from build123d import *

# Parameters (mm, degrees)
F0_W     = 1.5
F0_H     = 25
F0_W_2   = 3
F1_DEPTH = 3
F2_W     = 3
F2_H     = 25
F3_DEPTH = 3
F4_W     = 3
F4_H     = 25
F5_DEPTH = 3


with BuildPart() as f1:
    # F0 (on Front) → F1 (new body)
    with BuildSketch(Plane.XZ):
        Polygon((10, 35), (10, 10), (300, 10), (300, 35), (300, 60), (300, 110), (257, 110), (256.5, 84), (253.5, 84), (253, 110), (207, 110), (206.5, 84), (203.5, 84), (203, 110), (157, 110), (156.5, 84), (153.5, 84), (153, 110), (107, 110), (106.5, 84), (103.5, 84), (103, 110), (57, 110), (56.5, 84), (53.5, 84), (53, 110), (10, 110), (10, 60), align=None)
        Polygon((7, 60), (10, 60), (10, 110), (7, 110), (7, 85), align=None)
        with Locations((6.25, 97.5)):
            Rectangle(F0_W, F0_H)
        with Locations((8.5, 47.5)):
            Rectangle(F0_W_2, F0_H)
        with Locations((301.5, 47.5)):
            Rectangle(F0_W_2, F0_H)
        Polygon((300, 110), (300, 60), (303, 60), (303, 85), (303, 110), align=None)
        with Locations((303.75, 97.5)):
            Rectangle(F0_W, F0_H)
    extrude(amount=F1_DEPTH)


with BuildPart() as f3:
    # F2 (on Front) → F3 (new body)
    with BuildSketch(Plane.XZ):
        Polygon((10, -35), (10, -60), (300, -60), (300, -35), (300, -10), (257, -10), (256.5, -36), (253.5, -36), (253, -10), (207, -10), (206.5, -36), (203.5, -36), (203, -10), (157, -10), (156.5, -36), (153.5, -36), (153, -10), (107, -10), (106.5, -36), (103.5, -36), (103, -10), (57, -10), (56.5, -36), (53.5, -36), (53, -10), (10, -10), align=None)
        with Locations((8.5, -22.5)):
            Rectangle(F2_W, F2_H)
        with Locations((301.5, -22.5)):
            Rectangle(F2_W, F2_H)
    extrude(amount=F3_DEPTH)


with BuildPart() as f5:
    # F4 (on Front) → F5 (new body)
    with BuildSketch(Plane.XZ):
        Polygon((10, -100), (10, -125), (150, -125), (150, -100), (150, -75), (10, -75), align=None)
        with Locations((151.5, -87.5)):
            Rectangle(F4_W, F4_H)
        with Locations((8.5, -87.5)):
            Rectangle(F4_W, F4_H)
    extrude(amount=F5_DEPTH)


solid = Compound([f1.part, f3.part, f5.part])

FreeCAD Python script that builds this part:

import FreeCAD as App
import Part
import Sketcher

V = App.Vector
Q = App.Units.Quantity

doc = App.newDocument("Part")
body = doc.addObject("PartDesign::Body", "Body")

# Sketch on XZ plane
sketch1 = body.newObject("Sketcher::SketchObject", "Sketch")
sketch1.AttachmentSupport = (doc.getObject("XZ_Plane"), [""])
sketch1.MapMode = "FlatFace"
sketch1.addGeometry(Part.LineSegment(V(10, 10, 0), V(300, 10, 0)), False)
sketch1.addGeometry(Part.LineSegment(V(300, 10, 0), V(300, 35, 0)), False)
sketch1.addGeometry(Part.LineSegment(V(300, 35, 0), V(303, 35, 0)), False)
sketch1.addGeometry(Part.LineSegment(V(303, 35, 0), V(303, 85, 0)), False)
sketch1.addGeometry(Part.LineSegment(V(303, 85, 0), V(304.5, 85, 0)), False)
sketch1.addGeometry(Part.LineSegment(V(304.5, 85, 0), V(304.5, 110, 0)), False)
sketch1.addGeometry(Part.LineSegment(V(304.5, 110, 0), V(257, 110, 0)), False)
sketch1.addGeometry(Part.LineSegment(V(257, 110, 0), V(256.5, 84, 0)), False)
sketch1.addGeometry(Part.LineSegment(V(256.5, 84, 0), V(253.5, 84, 0)), False)
sketch1.addGeometry(Part.LineSegment(V(253.5, 84, 0), V(253, 110, 0)), False)
sketch1.addGeometry(Part.LineSegment(V(253, 110, 0), V(207, 110, 0)), False)
sketch1.addGeometry(Part.LineSegment(V(207, 110, 0), V(206.5, 84, 0)), False)
sketch1.addGeometry(Part.LineSegment(V(206.5, 84, 0), V(203.5, 84, 0)), False)
sketch1.addGeometry(Part.LineSegment(V(203.5, 84, 0), V(203, 110, 0)), False)
sketch1.addGeometry(Part.LineSegment(V(203, 110, 0), V(157, 110, 0)), False)
sketch1.addGeometry(Part.LineSegment(V(157, 110, 0), V(156.5, 84, 0)), False)
sketch1.addGeometry(Part.LineSegment(V(156.5, 84, 0), V(153.5, 84, 0)), False)
sketch1.addGeometry(Part.LineSegment(V(153.5, 84, 0), V(153, 110, 0)), False)
sketch1.addGeometry(Part.LineSegment(V(153, 110, 0), V(107, 110, 0)), False)
sketch1.addGeometry(Part.LineSegment(V(107, 110, 0), V(106.5, 84, 0)), False)
sketch1.addGeometry(Part.LineSegment(V(106.5, 84, 0), V(103.5, 84, 0)), False)
sketch1.addGeometry(Part.LineSegment(V(103.5, 84, 0), V(103, 110, 0)), False)
sketch1.addGeometry(Part.LineSegment(V(103, 110, 0), V(57, 110, 0)), False)
sketch1.addGeometry(Part.LineSegment(V(57, 110, 0), V(56.5, 84, 0)), False)
sketch1.addGeometry(Part.LineSegment(V(56.5, 84, 0), V(53.5, 84, 0)), False)
sketch1.addGeometry(Part.LineSegment(V(53.5, 84, 0), V(53, 110, 0)), False)
sketch1.addGeometry(Part.LineSegment(V(53, 110, 0), V(5.5, 110, 0)), False)
sketch1.addGeometry(Part.LineSegment(V(5.5, 110, 0), V(5.5, 85, 0)), False)
sketch1.addGeometry(Part.LineSegment(V(5.5, 85, 0), V(7, 85, 0)), False)
sketch1.addGeometry(Part.LineSegment(V(7, 85, 0), V(7, 35, 0)), False)
sketch1.addGeometry(Part.LineSegment(V(7, 35, 0), V(10, 35, 0)), False)
sketch1.addGeometry(Part.LineSegment(V(10, 35, 0), V(10, 10, 0)), False)
sketch1.addConstraint(Sketcher.Constraint("Coincident", 0, 2, 1, 1))
sketch1.addConstraint(Sketcher.Constraint("Coincident", 1, 2, 2, 1))
sketch1.addConstraint(Sketcher.Constraint("Coincident", 2, 2, 3, 1))
sketch1.addConstraint(Sketcher.Constraint("Coincident", 3, 2, 4, 1))
sketch1.addConstraint(Sketcher.Constraint("Coincident", 4, 2, 5, 1))
sketch1.addConstraint(Sketcher.Constraint("Coincident", 5, 2, 6, 1))
sketch1.addConstraint(Sketcher.Constraint("Coincident", 6, 2, 7, 1))
sketch1.addConstraint(Sketcher.Constraint("Coincident", 7, 2, 8, 1))
sketch1.addConstraint(Sketcher.Constraint("Coincident", 8, 2, 9, 1))
sketch1.addConstraint(Sketcher.Constraint("Coincident", 9, 2, 10, 1))
sketch1.addConstraint(Sketcher.Constraint("Coincident", 10, 2, 11, 1))
sketch1.addConstraint(Sketcher.Constraint("Coincident", 11, 2, 12, 1))
sketch1.addConstraint(Sketcher.Constraint("Coincident", 12, 2, 13, 1))
sketch1.addConstraint(Sketcher.Constraint("Coincident", 13, 2, 14, 1))
sketch1.addConstraint(Sketcher.Constraint("Coincident", 14, 2, 15, 1))
sketch1.addConstraint(Sketcher.Constraint("Coincident", 15, 2, 16, 1))
sketch1.addConstraint(Sketcher.Constraint("Coincident", 16, 2, 17, 1))
sketch1.addConstraint(Sketcher.Constraint("Coincident", 17, 2, 18, 1))
sketch1.addConstraint(Sketcher.Constraint("Coincident", 18, 2, 19, 1))
sketch1.addConstraint(Sketcher.Constraint("Coincident", 19, 2, 20, 1))
sketch1.addConstraint(Sketcher.Constraint("Coincident", 20, 2, 21, 1))
sketch1.addConstraint(Sketcher.Constraint("Coincident", 21, 2, 22, 1))
sketch1.addConstraint(Sketcher.Constraint("Coincident", 22, 2, 23, 1))
sketch1.addConstraint(Sketcher.Constraint("Coincident", 23, 2, 24, 1))
sketch1.addConstraint(Sketcher.Constraint("Coincident", 24, 2, 25, 1))
sketch1.addConstraint(Sketcher.Constraint("Coincident", 25, 2, 26, 1))
sketch1.addConstraint(Sketcher.Constraint("Coincident", 26, 2, 27, 1))
sketch1.addConstraint(Sketcher.Constraint("Coincident", 27, 2, 28, 1))
sketch1.addConstraint(Sketcher.Constraint("Coincident", 28, 2, 29, 1))
sketch1.addConstraint(Sketcher.Constraint("Coincident", 29, 2, 30, 1))
sketch1.addConstraint(Sketcher.Constraint("Coincident", 30, 2, 31, 1))
sketch1.addConstraint(Sketcher.Constraint("Coincident", 31, 2, 0, 1))
sketch1.addConstraint(Sketcher.Constraint("Horizontal", 0))
sketch1.addConstraint(Sketcher.Constraint("Vertical", 1))
sketch1.addConstraint(Sketcher.Constraint("Horizontal", 2))
sketch1.addConstraint(Sketcher.Constraint("Vertical", 3))
sketch1.addConstraint(Sketcher.Constraint("Horizontal", 4))
sketch1.addConstraint(Sketcher.Constraint("Vertical", 5))
sketch1.addConstraint(Sketcher.Constraint("Horizontal", 6))
sketch1.addConstraint(Sketcher.Constraint("Horizontal", 8))
sketch1.addConstraint(Sketcher.Constraint("Horizontal", 10))
sketch1.addConstraint(Sketcher.Constraint("Horizontal", 12))
sketch1.addConstraint(Sketcher.Constraint("Horizontal", 14))
sketch1.addConstraint(Sketcher.Constraint("Horizontal", 16))
sketch1.addConstraint(Sketcher.Constraint("Horizontal", 18))
sketch1.addConstraint(Sketcher.Constraint("Horizontal", 20))
sketch1.addConstraint(Sketcher.Constraint("Horizontal", 22))
sketch1.addConstraint(Sketcher.Constraint("Horizontal", 24))
sketch1.addConstraint(Sketcher.Constraint("Horizontal", 26))
sketch1.addConstraint(Sketcher.Constraint("Vertical", 27))
sketch1.addConstraint(Sketcher.Constraint("Horizontal", 28))
sketch1.addConstraint(Sketcher.Constraint("Vertical", 29))
sketch1.addConstraint(Sketcher.Constraint("Horizontal", 30))
sketch1.addConstraint(Sketcher.Constraint("Vertical", 31))
sketch1.addConstraint(Sketcher.Constraint("Parallel", 7, 11))
sketch1.addConstraint(Sketcher.Constraint("Parallel", 9, 13))
sketch1.addConstraint(Sketcher.Constraint("Parallel", 11, 15))
sketch1.addConstraint(Sketcher.Constraint("Parallel", 13, 17))
sketch1.addConstraint(Sketcher.Constraint("Parallel", 15, 19))
sketch1.addConstraint(Sketcher.Constraint("Parallel", 17, 21))
sketch1.addConstraint(Sketcher.Constraint("Parallel", 19, 23))
sketch1.addConstraint(Sketcher.Constraint("Parallel", 21, 25))
sketch1.addConstraint(Sketcher.Constraint("Horizontal", 6, 2, 9, 2))
sketch1.addConstraint(Sketcher.Constraint("Horizontal", 8, 2, 11, 2))
sketch1.addConstraint(Sketcher.Constraint("Horizontal", 10, 2, 13, 2))
sketch1.addConstraint(Sketcher.Constraint("Horizontal", 12, 2, 15, 2))
sketch1.addConstraint(Sketcher.Constraint("Horizontal", 14, 2, 17, 2))
sketch1.addConstraint(Sketcher.Constraint("Horizontal", 16, 2, 19, 2))
sketch1.addConstraint(Sketcher.Constraint("Horizontal", 18, 2, 21, 2))
sketch1.addConstraint(Sketcher.Constraint("Horizontal", 20, 2, 23, 2))
sketch1.addConstraint(Sketcher.Constraint("Horizontal", 22, 2, 25, 2))
sketch1.addConstraint(Sketcher.Constraint("Horizontal", 4, 2, 27, 2))
sketch1.addConstraint(Sketcher.Constraint("Horizontal", 2, 2, 29, 2))
sketch1.addConstraint(Sketcher.Constraint("Equal", 2, 8))
sketch1.addConstraint(Sketcher.Constraint("Equal", 8, 12))
sketch1.addConstraint(Sketcher.Constraint("Equal", 10, 14))
sketch1.addConstraint(Sketcher.Constraint("Equal", 12, 16))
sketch1.addConstraint(Sketcher.Constraint("Equal", 14, 18))
sketch1.addConstraint(Sketcher.Constraint("Equal", 16, 20))
sketch1.addConstraint(Sketcher.Constraint("Equal", 18, 22))
sketch1.addConstraint(Sketcher.Constraint("Equal", 20, 24))
sketch1.addConstraint(Sketcher.Constraint("Equal", 6, 26))
sketch1.addConstraint(Sketcher.Constraint("Equal", 4, 28))
sketch1.addConstraint(Sketcher.Constraint("Equal", 24, 30))
sketch1.addConstraint(Sketcher.Constraint("Equal", 1, 5))
sketch1.addConstraint(Sketcher.Constraint("Equal", 7, 9))
sketch1.addConstraint(Sketcher.Constraint("DistanceX", 0, 1, 0, 2, Q("290 mm")))
sketch1.addConstraint(Sketcher.Constraint("DistanceX", 2, 1, 2, 2, Q("3 mm")))
sketch1.addConstraint(Sketcher.Constraint("DistanceX", 10, 2, 10, 1, Q("46 mm")))
sketch1.addConstraint(Sketcher.Constraint("DistanceY", 1, 1, 1, 2, Q("25 mm")))
sketch1.addConstraint(Sketcher.Constraint("DistanceY", 3, 1, 3, 2, Q("50 mm")))
sketch1.addConstraint(Sketcher.Constraint("DistanceX", 4, 1, 4, 2, Q("1.5 mm")))
sketch1.addConstraint(Sketcher.Constraint("DistanceX", 6, 2, 6, 1, Q("47.5 mm")))
sketch1.addConstraint(Sketcher.Constraint("DistanceX", -1, 1, 0, 2, Q("300 mm")))
sketch1.addConstraint(Sketcher.Constraint("DistanceY", -1, 1, 0, 2, Q("10 mm")))
sketch1.addConstraint(Sketcher.Constraint("DistanceY", -1, 1, 7, 2, Q("84 mm")))
pad1 = body.newObject("PartDesign::Pad", "Pad")
pad1.Profile = sketch1
pad1.Length = 3
body2 = doc.addObject("PartDesign::Body", "Body001")

# Sketch on XZ plane
sketch2 = body2.newObject("Sketcher::SketchObject", "Sketch001")
sketch2.AttachmentSupport = (doc.getObject("XZ_Plane001"), [""])
sketch2.MapMode = "FlatFace"
sketch2.addGeometry(Part.LineSegment(V(10, -60, 0), V(300, -60, 0)), False)
sketch2.addGeometry(Part.LineSegment(V(300, -60, 0), V(300, -35, 0)), False)
sketch2.addGeometry(Part.LineSegment(V(300, -35, 0), V(303, -35, 0)), False)
sketch2.addGeometry(Part.LineSegment(V(303, -35, 0), V(303, -10, 0)), False)
sketch2.addGeometry(Part.LineSegment(V(303, -10, 0), V(257, -10, 0)), False)
sketch2.addGeometry(Part.LineSegment(V(257, -10, 0), V(256.5, -36, 0)), False)
sketch2.addGeometry(Part.LineSegment(V(256.5, -36, 0), V(253.5, -36, 0)), False)
sketch2.addGeometry(Part.LineSegment(V(253.5, -36, 0), V(253, -10, 0)), False)
sketch2.addGeometry(Part.LineSegment(V(253, -10, 0), V(207, -10, 0)), False)
sketch2.addGeometry(Part.LineSegment(V(207, -10, 0), V(206.5, -36, 0)), False)
sketch2.addGeometry(Part.LineSegment(V(206.5, -36, 0), V(203.5, -36, 0)), False)
sketch2.addGeometry(Part.LineSegment(V(203.5, -36, 0), V(203, -10, 0)), False)
sketch2.addGeometry(Part.LineSegment(V(203, -10, 0), V(157, -10, 0)), False)
sketch2.addGeometry(Part.LineSegment(V(157, -10, 0), V(156.5, -36, 0)), False)
sketch2.addGeometry(Part.LineSegment(V(156.5, -36, 0), V(153.5, -36, 0)), False)
sketch2.addGeometry(Part.LineSegment(V(153.5, -36, 0), V(153, -10, 0)), False)
sketch2.addGeometry(Part.LineSegment(V(153, -10, 0), V(107, -10, 0)), False)
sketch2.addGeometry(Part.LineSegment(V(107, -10, 0), V(106.5, -36, 0)), False)
sketch2.addGeometry(Part.LineSegment(V(106.5, -36, 0), V(103.5, -36, 0)), False)
sketch2.addGeometry(Part.LineSegment(V(103.5, -36, 0), V(103, -10, 0)), False)
sketch2.addGeometry(Part.LineSegment(V(103, -10, 0), V(57, -10, 0)), False)
sketch2.addGeometry(Part.LineSegment(V(57, -10, 0), V(56.5, -36, 0)), False)
sketch2.addGeometry(Part.LineSegment(V(56.5, -36, 0), V(53.5, -36, 0)), False)
sketch2.addGeometry(Part.LineSegment(V(53.5, -36, 0), V(53, -10, 0)), False)
sketch2.addGeometry(Part.LineSegment(V(53, -10, 0), V(7, -10, 0)), False)
sketch2.addGeometry(Part.LineSegment(V(7, -10, 0), V(7, -35, 0)), False)
sketch2.addGeometry(Part.LineSegment(V(7, -35, 0), V(10, -35, 0)), False)
sketch2.addGeometry(Part.LineSegment(V(10, -35, 0), V(10, -60, 0)), False)
sketch2.addConstraint(Sketcher.Constraint("Coincident", 0, 2, 1, 1))
sketch2.addConstraint(Sketcher.Constraint("Coincident", 1, 2, 2, 1))
sketch2.addConstraint(Sketcher.Constraint("Coincident", 2, 2, 3, 1))
sketch2.addConstraint(Sketcher.Constraint("Coincident", 3, 2, 4, 1))
sketch2.addConstraint(Sketcher.Constraint("Coincident", 4, 2, 5, 1))
sketch2.addConstraint(Sketcher.Constraint("Coincident", 5, 2, 6, 1))
sketch2.addConstraint(Sketcher.Constraint("Coincident", 6, 2, 7, 1))
sketch2.addConstraint(Sketcher.Constraint("Coincident", 7, 2, 8, 1))
sketch2.addConstraint(Sketcher.Constraint("Coincident", 8, 2, 9, 1))
sketch2.addConstraint(Sketcher.Constraint("Coincident", 9, 2, 10, 1))
sketch2.addConstraint(Sketcher.Constraint("Coincident", 10, 2, 11, 1))
sketch2.addConstraint(Sketcher.Constraint("Coincident", 11, 2, 12, 1))
sketch2.addConstraint(Sketcher.Constraint("Coincident", 12, 2, 13, 1))
sketch2.addConstraint(Sketcher.Constraint("Coincident", 13, 2, 14, 1))
sketch2.addConstraint(Sketcher.Constraint("Coincident", 14, 2, 15, 1))
sketch2.addConstraint(Sketcher.Constraint("Coincident", 15, 2, 16, 1))
sketch2.addConstraint(Sketcher.Constraint("Coincident", 16, 2, 17, 1))
sketch2.addConstraint(Sketcher.Constraint("Coincident", 17, 2, 18, 1))
sketch2.addConstraint(Sketcher.Constraint("Coincident", 18, 2, 19, 1))
sketch2.addConstraint(Sketcher.Constraint("Coincident", 19, 2, 20, 1))
sketch2.addConstraint(Sketcher.Constraint("Coincident", 20, 2, 21, 1))
sketch2.addConstraint(Sketcher.Constraint("Coincident", 21, 2, 22, 1))
sketch2.addConstraint(Sketcher.Constraint("Coincident", 22, 2, 23, 1))
sketch2.addConstraint(Sketcher.Constraint("Coincident", 23, 2, 24, 1))
sketch2.addConstraint(Sketcher.Constraint("Coincident", 24, 2, 25, 1))
sketch2.addConstraint(Sketcher.Constraint("Coincident", 25, 2, 26, 1))
sketch2.addConstraint(Sketcher.Constraint("Coincident", 26, 2, 27, 1))
sketch2.addConstraint(Sketcher.Constraint("Coincident", 27, 2, 0, 1))
sketch2.addConstraint(Sketcher.Constraint("Horizontal", 0))
sketch2.addConstraint(Sketcher.Constraint("Vertical", 1))
sketch2.addConstraint(Sketcher.Constraint("Horizontal", 2))
sketch2.addConstraint(Sketcher.Constraint("Vertical", 3))
sketch2.addConstraint(Sketcher.Constraint("Horizontal", 4))
sketch2.addConstraint(Sketcher.Constraint("Horizontal", 6))
sketch2.addConstraint(Sketcher.Constraint("Horizontal", 8))
sketch2.addConstraint(Sketcher.Constraint("Horizontal", 10))
sketch2.addConstraint(Sketcher.Constraint("Horizontal", 12))
sketch2.addConstraint(Sketcher.Constraint("Horizontal", 14))
sketch2.addConstraint(Sketcher.Constraint("Horizontal", 16))
sketch2.addConstraint(Sketcher.Constraint("Horizontal", 18))
sketch2.addConstraint(Sketcher.Constraint("Horizontal", 20))
sketch2.addConstraint(Sketcher.Constraint("Horizontal", 22))
sketch2.addConstraint(Sketcher.Constraint("Horizontal", 24))
sketch2.addConstraint(Sketcher.Constraint("Vertical", 25))
sketch2.addConstraint(Sketcher.Constraint("Horizontal", 26))
sketch2.addConstraint(Sketcher.Constraint("Vertical", 27))
sketch2.addConstraint(Sketcher.Constraint("Parallel", 5, 9))
sketch2.addConstraint(Sketcher.Constraint("Parallel", 7, 11))
sketch2.addConstraint(Sketcher.Constraint("Parallel", 9, 13))
sketch2.addConstraint(Sketcher.Constraint("Parallel", 11, 15))
sketch2.addConstraint(Sketcher.Constraint("Parallel", 13, 17))
sketch2.addConstraint(Sketcher.Constraint("Parallel", 15, 19))
sketch2.addConstraint(Sketcher.Constraint("Parallel", 17, 21))
sketch2.addConstraint(Sketcher.Constraint("Parallel", 19, 23))
sketch2.addConstraint(Sketcher.Constraint("Horizontal", 4, 2, 7, 2))
sketch2.addConstraint(Sketcher.Constraint("Horizontal", 6, 2, 9, 2))
sketch2.addConstraint(Sketcher.Constraint("Horizontal", 8, 2, 11, 2))
sketch2.addConstraint(Sketcher.Constraint("Horizontal", 10, 2, 13, 2))
sketch2.addConstraint(Sketcher.Constraint("Horizontal", 12, 2, 15, 2))
sketch2.addConstraint(Sketcher.Constraint("Horizontal", 14, 2, 17, 2))
sketch2.addConstraint(Sketcher.Constraint("Horizontal", 16, 2, 19, 2))
sketch2.addConstraint(Sketcher.Constraint("Horizontal", 18, 2, 21, 2))
sketch2.addConstraint(Sketcher.Constraint("Horizontal", 20, 2, 23, 2))
sketch2.addConstraint(Sketcher.Constraint("Horizontal", 2, 2, 25, 2))
sketch2.addConstraint(Sketcher.Constraint("Equal", 2, 6))
sketch2.addConstraint(Sketcher.Constraint("Equal", 4, 8))
sketch2.addConstraint(Sketcher.Constraint("Equal", 6, 10))
sketch2.addConstraint(Sketcher.Constraint("Equal", 8, 12))
sketch2.addConstraint(Sketcher.Constraint("Equal", 10, 14))
sketch2.addConstraint(Sketcher.Constraint("Equal", 12, 16))
sketch2.addConstraint(Sketcher.Constraint("Equal", 14, 18))
sketch2.addConstraint(Sketcher.Constraint("Equal", 16, 20))
sketch2.addConstraint(Sketcher.Constraint("Equal", 18, 22))
sketch2.addConstraint(Sketcher.Constraint("Equal", 20, 24))
sketch2.addConstraint(Sketcher.Constraint("Equal", 22, 26))
sketch2.addConstraint(Sketcher.Constraint("Equal", 1, 3))
sketch2.addConstraint(Sketcher.Constraint("Equal", 5, 7))
sketch2.addConstraint(Sketcher.Constraint("DistanceX", 0, 1, 0, 2, Q("290 mm")))
sketch2.addConstraint(Sketcher.Constraint("DistanceX", 2, 1, 2, 2, Q("3 mm")))
sketch2.addConstraint(Sketcher.Constraint("DistanceX", 4, 2, 4, 1, Q("46 mm")))
sketch2.addConstraint(Sketcher.Constraint("DistanceY", 1, 1, 1, 2, Q("25 mm")))
sketch2.addConstraint(Sketcher.Constraint("DistanceX", -1, 1, 0, 2, Q("300 mm")))
sketch2.addConstraint(Sketcher.Constraint("DistanceY", 0, 2, -1, 1, Q("60 mm")))
sketch2.addConstraint(Sketcher.Constraint("DistanceY", 5, 2, -1, 1, Q("36 mm")))
pad2 = body2.newObject("PartDesign::Pad", "Pad001")
pad2.Profile = sketch2
pad2.Length = 3
body3 = doc.addObject("PartDesign::Body", "Body002")

# Sketch on XZ plane
sketch3 = body3.newObject("Sketcher::SketchObject", "Sketch002")
sketch3.AttachmentSupport = (doc.getObject("XZ_Plane002"), [""])
sketch3.MapMode = "FlatFace"
sketch3.addGeometry(Part.LineSegment(V(10, -125, 0), V(150, -125, 0)), False)
sketch3.addGeometry(Part.LineSegment(V(150, -125, 0), V(150, -100, 0)), False)
sketch3.addGeometry(Part.LineSegment(V(150, -100, 0), V(153, -100, 0)), False)
sketch3.addGeometry(Part.LineSegment(V(153, -100, 0), V(153, -75, 0)), False)
sketch3.addGeometry(Part.LineSegment(V(153, -75, 0), V(7, -75, 0)), False)
sketch3.addGeometry(Part.LineSegment(V(7, -75, 0), V(7, -100, 0)), False)
sketch3.addGeometry(Part.LineSegment(V(7, -100, 0), V(10, -100, 0)), False)
sketch3.addGeometry(Part.LineSegment(V(10, -100, 0), V(10, -125, 0)), False)
sketch3.addConstraint(Sketcher.Constraint("Coincident", 0, 2, 1, 1))
sketch3.addConstraint(Sketcher.Constraint("Coincident", 1, 2, 2, 1))
sketch3.addConstraint(Sketcher.Constraint("Coincident", 2, 2, 3, 1))
sketch3.addConstraint(Sketcher.Constraint("Coincident", 3, 2, 4, 1))
sketch3.addConstraint(Sketcher.Constraint("Coincident", 4, 2, 5, 1))
sketch3.addConstraint(Sketcher.Constraint("Coincident", 5, 2, 6, 1))
sketch3.addConstraint(Sketcher.Constraint("Coincident", 6, 2, 7, 1))
sketch3.addConstraint(Sketcher.Constraint("Coincident", 7, 2, 0, 1))
sketch3.addConstraint(Sketcher.Constraint("Horizontal", 0))
sketch3.addConstraint(Sketcher.Constraint("Vertical", 1))
sketch3.addConstraint(Sketcher.Constraint("Horizontal", 2))
sketch3.addConstraint(Sketcher.Constraint("Vertical", 3))
sketch3.addConstraint(Sketcher.Constraint("Horizontal", 4))
sketch3.addConstraint(Sketcher.Constraint("Vertical", 5))
sketch3.addConstraint(Sketcher.Constraint("Horizontal", 6))
sketch3.addConstraint(Sketcher.Constraint("Vertical", 7))
sketch3.addConstraint(Sketcher.Constraint("Horizontal", 2, 2, 5, 2))
sketch3.addConstraint(Sketcher.Constraint("Equal", 2, 6))
sketch3.addConstraint(Sketcher.Constraint("Equal", 1, 3))
sketch3.addConstraint(Sketcher.Constraint("DistanceX", 0, 1, 0, 2, Q("140 mm")))
sketch3.addConstraint(Sketcher.Constraint("DistanceX", 2, 1, 2, 2, Q("3 mm")))
sketch3.addConstraint(Sketcher.Constraint("DistanceY", 1, 1, 1, 2, Q("25 mm")))
sketch3.addConstraint(Sketcher.Constraint("DistanceX", -1, 1, 0, 2, Q("150 mm")))
sketch3.addConstraint(Sketcher.Constraint("DistanceY", 0, 2, -1, 1, Q("125 mm")))
pad3 = body3.newObject("PartDesign::Pad", "Pad002")
pad3.Profile = sketch3
pad3.Length = 3

doc.recompute()
